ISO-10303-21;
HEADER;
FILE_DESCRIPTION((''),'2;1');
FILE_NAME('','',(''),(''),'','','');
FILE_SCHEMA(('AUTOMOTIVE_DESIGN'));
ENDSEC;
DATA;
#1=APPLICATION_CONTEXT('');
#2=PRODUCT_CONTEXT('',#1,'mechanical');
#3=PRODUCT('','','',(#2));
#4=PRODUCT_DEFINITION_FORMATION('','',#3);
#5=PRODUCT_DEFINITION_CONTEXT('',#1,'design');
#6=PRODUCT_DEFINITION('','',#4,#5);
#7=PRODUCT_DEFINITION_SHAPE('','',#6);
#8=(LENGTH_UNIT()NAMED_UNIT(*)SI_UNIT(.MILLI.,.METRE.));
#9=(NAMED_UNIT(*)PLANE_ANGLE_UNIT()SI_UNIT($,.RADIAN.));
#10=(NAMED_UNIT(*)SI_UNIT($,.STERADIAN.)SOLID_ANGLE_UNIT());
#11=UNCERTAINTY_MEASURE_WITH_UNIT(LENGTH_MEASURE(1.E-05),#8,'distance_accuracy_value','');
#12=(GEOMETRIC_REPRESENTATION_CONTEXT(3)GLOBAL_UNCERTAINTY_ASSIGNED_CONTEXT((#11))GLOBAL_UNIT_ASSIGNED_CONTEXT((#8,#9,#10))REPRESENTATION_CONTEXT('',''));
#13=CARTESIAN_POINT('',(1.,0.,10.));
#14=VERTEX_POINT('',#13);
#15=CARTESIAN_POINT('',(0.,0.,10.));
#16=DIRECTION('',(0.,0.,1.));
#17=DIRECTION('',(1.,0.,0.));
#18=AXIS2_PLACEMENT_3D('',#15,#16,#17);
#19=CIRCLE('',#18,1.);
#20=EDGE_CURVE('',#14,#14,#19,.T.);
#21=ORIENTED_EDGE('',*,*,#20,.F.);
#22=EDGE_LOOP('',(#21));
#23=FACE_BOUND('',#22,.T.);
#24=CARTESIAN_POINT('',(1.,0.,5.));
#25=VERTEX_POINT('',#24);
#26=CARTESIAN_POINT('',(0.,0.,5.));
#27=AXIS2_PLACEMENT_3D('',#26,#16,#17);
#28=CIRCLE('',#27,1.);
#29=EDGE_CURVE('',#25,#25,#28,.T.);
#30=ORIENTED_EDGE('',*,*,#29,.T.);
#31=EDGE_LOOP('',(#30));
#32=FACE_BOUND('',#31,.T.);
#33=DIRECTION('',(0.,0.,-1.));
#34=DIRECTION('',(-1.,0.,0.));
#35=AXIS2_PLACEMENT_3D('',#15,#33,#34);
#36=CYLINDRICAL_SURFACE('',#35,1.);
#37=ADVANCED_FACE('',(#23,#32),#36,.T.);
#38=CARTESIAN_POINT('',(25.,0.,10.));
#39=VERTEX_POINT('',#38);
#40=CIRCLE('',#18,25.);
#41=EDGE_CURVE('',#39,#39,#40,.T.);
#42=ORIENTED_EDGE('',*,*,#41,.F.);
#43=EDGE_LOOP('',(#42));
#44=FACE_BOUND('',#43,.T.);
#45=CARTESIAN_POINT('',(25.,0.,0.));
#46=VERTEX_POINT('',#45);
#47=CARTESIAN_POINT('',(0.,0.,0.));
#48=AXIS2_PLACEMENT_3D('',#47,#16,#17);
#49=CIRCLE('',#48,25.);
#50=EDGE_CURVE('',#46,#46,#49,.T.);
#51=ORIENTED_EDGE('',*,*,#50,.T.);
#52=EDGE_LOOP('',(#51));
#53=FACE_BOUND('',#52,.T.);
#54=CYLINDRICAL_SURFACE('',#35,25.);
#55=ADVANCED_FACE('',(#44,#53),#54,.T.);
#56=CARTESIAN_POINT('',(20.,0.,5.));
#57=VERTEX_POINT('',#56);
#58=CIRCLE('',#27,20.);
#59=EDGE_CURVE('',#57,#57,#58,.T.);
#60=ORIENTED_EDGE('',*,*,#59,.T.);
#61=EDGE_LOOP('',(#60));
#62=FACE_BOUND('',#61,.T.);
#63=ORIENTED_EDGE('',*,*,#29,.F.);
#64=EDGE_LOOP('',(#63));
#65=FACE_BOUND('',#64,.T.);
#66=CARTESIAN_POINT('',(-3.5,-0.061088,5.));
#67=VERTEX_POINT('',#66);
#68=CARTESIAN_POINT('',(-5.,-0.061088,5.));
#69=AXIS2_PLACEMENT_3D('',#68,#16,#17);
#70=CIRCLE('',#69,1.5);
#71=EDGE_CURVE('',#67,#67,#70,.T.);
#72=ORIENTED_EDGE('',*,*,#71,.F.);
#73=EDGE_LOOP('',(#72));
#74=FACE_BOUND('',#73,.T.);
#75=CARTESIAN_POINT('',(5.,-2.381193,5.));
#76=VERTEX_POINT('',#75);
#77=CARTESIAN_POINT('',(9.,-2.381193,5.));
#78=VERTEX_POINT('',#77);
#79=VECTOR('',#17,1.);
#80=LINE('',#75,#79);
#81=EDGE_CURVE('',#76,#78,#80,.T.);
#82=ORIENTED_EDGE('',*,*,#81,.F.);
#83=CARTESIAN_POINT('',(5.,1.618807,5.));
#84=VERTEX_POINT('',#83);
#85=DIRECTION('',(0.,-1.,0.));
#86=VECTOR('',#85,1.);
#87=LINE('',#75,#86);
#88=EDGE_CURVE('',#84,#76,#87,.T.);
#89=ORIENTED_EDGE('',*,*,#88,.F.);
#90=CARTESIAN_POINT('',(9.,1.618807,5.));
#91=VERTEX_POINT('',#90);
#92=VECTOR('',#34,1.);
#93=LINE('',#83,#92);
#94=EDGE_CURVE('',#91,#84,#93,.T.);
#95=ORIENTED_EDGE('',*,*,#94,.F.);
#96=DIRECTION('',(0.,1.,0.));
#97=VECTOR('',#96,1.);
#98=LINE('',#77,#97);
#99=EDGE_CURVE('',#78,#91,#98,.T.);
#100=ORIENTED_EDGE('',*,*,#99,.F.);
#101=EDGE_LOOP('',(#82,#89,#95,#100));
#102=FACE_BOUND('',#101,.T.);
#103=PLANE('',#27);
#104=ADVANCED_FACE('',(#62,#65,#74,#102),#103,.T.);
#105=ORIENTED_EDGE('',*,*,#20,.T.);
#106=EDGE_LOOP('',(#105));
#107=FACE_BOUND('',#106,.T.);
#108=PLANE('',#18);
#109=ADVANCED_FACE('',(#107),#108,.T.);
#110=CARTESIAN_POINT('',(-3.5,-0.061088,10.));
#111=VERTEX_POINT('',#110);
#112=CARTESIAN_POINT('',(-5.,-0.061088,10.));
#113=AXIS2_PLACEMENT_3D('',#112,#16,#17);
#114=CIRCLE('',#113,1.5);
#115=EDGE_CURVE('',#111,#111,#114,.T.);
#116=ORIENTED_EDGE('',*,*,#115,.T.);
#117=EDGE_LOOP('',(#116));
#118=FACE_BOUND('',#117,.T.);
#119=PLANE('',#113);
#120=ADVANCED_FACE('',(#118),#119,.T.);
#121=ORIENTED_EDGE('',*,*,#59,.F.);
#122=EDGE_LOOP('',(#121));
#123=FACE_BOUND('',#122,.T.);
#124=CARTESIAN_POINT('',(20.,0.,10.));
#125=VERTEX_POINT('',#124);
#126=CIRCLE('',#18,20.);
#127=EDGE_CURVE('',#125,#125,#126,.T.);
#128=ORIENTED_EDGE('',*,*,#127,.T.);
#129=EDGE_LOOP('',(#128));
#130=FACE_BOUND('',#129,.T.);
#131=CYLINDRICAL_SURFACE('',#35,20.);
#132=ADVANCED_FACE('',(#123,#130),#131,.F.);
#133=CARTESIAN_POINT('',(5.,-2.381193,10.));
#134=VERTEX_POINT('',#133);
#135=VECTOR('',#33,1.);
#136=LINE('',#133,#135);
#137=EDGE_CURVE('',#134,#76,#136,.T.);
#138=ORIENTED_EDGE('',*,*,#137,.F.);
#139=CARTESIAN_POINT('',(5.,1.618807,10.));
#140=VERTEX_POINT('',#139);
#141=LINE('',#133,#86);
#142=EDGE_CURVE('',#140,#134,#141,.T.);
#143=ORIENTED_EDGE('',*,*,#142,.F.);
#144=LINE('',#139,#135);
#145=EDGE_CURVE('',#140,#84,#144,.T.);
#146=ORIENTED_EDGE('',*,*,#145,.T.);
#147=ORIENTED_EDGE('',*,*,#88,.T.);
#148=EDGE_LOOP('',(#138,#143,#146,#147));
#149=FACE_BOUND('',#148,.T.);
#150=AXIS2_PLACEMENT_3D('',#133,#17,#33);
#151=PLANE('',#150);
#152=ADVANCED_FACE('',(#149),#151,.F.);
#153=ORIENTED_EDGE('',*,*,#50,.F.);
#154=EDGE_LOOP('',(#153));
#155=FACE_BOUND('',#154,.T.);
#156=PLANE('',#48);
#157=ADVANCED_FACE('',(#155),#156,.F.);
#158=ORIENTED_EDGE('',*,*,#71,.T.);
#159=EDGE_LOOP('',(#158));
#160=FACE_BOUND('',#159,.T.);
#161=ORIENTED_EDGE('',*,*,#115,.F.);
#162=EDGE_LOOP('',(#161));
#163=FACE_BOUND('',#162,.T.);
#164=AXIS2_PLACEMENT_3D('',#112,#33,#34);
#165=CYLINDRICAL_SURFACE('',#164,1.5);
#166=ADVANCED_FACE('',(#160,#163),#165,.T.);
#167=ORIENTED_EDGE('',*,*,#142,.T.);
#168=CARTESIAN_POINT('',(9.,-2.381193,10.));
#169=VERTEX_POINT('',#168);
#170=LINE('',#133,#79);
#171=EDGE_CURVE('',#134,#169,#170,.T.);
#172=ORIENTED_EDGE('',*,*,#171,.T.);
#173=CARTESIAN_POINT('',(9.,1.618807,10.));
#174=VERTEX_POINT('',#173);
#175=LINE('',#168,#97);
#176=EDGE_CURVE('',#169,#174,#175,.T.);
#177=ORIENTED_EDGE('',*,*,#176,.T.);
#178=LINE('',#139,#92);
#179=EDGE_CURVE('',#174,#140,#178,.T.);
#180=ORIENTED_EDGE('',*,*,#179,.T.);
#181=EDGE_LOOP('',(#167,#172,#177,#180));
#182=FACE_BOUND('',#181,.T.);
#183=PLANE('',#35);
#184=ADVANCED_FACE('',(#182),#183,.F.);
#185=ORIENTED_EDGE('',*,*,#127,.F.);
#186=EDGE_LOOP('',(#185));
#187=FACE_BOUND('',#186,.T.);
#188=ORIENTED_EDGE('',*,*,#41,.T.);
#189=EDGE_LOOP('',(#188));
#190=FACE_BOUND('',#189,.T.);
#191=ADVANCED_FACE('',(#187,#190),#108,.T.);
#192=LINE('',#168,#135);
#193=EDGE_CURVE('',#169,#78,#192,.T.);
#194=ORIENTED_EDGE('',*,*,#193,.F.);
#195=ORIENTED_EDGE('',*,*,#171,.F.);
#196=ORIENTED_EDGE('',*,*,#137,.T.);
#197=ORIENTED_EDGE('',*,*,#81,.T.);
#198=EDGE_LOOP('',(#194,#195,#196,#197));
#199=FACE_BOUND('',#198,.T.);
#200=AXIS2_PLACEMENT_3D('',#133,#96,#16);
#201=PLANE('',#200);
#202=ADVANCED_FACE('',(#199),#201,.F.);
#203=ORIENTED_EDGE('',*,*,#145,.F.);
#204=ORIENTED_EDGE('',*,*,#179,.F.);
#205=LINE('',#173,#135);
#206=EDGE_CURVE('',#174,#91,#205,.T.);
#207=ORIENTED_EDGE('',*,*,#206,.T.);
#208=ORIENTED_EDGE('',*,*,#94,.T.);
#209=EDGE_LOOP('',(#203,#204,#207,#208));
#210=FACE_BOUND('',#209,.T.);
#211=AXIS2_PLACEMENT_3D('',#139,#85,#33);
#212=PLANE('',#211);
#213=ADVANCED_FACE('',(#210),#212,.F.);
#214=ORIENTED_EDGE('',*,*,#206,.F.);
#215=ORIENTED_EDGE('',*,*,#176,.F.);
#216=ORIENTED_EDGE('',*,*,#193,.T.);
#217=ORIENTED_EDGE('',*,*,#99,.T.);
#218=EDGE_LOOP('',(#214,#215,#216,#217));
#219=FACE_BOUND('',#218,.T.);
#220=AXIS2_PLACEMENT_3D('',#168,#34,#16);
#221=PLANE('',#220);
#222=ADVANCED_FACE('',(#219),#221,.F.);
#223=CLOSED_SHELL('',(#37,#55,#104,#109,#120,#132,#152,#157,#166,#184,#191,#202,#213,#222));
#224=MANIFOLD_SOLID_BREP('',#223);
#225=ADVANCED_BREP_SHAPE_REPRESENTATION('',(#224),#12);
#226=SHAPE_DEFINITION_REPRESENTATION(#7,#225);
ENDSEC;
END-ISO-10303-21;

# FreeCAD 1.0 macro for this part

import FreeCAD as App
import Part
import Sketcher
from FreeCAD import Vector


def faces_at(feature, points):
    """Names of the faces that lie closest to the given points."""
    faces = feature.Shape.Faces
    near = lambda p: min(range(len(faces)), key=lambda i: faces[i].distToShape(Part.Vertex(*p))[0])
    return sorted({f"Face{near(p) + 1}" for p in points})


def add_polygon(sketch, points):
    """Adds a closed chain of lines whose ends are joined by coincident constraints."""
    first, n = sketch.GeometryCount, len(points)
    for a, b in zip(points, points[1:] + points[:1]):
        sketch.addGeometry(Part.LineSegment(App.Vector(*a, 0), App.Vector(*b, 0)), False)
    for i in range(n):
        sketch.addConstraint(Sketcher.Constraint("Coincident", first + i, 2, first + (i + 1) % n, 1))

doc = App.newDocument("Part")
body = doc.addObject("PartDesign::Body", "Body")

# Sketch on XY plane
sketch1 = doc.addObject("Sketcher::SketchObject", "Sketch")
body.addObject(sketch1)
sketch1.AttachmentSupport = (doc.XY_Plane, [""])
sketch1.MapMode = "FlatFace"
sketch1.addGeometry(Part.Circle(Vector(0, 0, 0), Vector(0, 0, 1), 25), False)
sketch1.addConstraint([
    Sketcher.Constraint("Coincident", 0, 3, -1, 1),
    Sketcher.Constraint("Diameter", 0, 50.0),
])
pad1 = doc.addObject("PartDesign::Pad", "Pad")
body.addObject(pad1)
pad1.Profile = sketch1
pad1.Length = 10
doc.recompute()

thickness = doc.addObject("PartDesign::Thickness", "Thickness")
body.addObject(thickness)
thickness.Base = (pad1, faces_at(pad1, [(0, 0, 10)]))
thickness.Value = 5
thickness.Reversed = True
thickness.Join = "Intersection"

# Sketch on XY plane
sketch2 = doc.addObject("Sketcher::SketchObject", "Sketch001")
body.addObject(sketch2)
sketch2.AttachmentSupport = (doc.XY_Plane, [""])
sketch2.MapMode = "FlatFace"
sketch2.AttachmentOffset = App.Placement(Vector(0, 0, 5), App.Rotation())
sketch2.addGeometry(Part.Circle(Vector(-5, -0.1, 0), Vector(0, 0, 1), 1.5), False)  # 0
sketch2.addGeometry(Part.Circle(Vector(0, 0, 0), Vector(0, 0, 1), 1), False)  # 1
add_polygon(sketch2, [(5, 1.6), (5, -2.4), (9, -2.4), (9, 1.6)])  # lines 2-5
sketch2.addConstraint([
    Sketcher.Constraint("Vertical", 2),
    Sketcher.Constraint("Horizontal", 3),
    Sketcher.Constraint("Vertical", 4),
    Sketcher.Constraint("Horizontal", 5),
    Sketcher.Constraint("Coincident", 1, 3, -1, 1),
    Sketcher.Constraint("Equal", 5, 2),
    Sketcher.Constraint("Diameter", 0, 3.0),
    Sketcher.Constraint("Diameter", 1, 2.0),
    Sketcher.Constraint("DistanceX", 3, 1, 3, 2, 4.0),
    Sketcher.Constraint("DistanceX", 0, 3, -1, 1, 5.0),
    Sketcher.Constraint("DistanceX", -1, 1, 2, 2, 5.0),
    Sketcher.Constraint("DistanceY", 0, 3, -1, 1, 0.061088),
    Sketcher.Constraint("DistanceY", 2, 2, -1, 1, 2.381193),
])
pad2 = doc.addObject("PartDesign::Pad", "Pad001")
body.addObject(pad2)
pad2.Profile = sketch2
pad2.Length = 5

doc.recompute()
